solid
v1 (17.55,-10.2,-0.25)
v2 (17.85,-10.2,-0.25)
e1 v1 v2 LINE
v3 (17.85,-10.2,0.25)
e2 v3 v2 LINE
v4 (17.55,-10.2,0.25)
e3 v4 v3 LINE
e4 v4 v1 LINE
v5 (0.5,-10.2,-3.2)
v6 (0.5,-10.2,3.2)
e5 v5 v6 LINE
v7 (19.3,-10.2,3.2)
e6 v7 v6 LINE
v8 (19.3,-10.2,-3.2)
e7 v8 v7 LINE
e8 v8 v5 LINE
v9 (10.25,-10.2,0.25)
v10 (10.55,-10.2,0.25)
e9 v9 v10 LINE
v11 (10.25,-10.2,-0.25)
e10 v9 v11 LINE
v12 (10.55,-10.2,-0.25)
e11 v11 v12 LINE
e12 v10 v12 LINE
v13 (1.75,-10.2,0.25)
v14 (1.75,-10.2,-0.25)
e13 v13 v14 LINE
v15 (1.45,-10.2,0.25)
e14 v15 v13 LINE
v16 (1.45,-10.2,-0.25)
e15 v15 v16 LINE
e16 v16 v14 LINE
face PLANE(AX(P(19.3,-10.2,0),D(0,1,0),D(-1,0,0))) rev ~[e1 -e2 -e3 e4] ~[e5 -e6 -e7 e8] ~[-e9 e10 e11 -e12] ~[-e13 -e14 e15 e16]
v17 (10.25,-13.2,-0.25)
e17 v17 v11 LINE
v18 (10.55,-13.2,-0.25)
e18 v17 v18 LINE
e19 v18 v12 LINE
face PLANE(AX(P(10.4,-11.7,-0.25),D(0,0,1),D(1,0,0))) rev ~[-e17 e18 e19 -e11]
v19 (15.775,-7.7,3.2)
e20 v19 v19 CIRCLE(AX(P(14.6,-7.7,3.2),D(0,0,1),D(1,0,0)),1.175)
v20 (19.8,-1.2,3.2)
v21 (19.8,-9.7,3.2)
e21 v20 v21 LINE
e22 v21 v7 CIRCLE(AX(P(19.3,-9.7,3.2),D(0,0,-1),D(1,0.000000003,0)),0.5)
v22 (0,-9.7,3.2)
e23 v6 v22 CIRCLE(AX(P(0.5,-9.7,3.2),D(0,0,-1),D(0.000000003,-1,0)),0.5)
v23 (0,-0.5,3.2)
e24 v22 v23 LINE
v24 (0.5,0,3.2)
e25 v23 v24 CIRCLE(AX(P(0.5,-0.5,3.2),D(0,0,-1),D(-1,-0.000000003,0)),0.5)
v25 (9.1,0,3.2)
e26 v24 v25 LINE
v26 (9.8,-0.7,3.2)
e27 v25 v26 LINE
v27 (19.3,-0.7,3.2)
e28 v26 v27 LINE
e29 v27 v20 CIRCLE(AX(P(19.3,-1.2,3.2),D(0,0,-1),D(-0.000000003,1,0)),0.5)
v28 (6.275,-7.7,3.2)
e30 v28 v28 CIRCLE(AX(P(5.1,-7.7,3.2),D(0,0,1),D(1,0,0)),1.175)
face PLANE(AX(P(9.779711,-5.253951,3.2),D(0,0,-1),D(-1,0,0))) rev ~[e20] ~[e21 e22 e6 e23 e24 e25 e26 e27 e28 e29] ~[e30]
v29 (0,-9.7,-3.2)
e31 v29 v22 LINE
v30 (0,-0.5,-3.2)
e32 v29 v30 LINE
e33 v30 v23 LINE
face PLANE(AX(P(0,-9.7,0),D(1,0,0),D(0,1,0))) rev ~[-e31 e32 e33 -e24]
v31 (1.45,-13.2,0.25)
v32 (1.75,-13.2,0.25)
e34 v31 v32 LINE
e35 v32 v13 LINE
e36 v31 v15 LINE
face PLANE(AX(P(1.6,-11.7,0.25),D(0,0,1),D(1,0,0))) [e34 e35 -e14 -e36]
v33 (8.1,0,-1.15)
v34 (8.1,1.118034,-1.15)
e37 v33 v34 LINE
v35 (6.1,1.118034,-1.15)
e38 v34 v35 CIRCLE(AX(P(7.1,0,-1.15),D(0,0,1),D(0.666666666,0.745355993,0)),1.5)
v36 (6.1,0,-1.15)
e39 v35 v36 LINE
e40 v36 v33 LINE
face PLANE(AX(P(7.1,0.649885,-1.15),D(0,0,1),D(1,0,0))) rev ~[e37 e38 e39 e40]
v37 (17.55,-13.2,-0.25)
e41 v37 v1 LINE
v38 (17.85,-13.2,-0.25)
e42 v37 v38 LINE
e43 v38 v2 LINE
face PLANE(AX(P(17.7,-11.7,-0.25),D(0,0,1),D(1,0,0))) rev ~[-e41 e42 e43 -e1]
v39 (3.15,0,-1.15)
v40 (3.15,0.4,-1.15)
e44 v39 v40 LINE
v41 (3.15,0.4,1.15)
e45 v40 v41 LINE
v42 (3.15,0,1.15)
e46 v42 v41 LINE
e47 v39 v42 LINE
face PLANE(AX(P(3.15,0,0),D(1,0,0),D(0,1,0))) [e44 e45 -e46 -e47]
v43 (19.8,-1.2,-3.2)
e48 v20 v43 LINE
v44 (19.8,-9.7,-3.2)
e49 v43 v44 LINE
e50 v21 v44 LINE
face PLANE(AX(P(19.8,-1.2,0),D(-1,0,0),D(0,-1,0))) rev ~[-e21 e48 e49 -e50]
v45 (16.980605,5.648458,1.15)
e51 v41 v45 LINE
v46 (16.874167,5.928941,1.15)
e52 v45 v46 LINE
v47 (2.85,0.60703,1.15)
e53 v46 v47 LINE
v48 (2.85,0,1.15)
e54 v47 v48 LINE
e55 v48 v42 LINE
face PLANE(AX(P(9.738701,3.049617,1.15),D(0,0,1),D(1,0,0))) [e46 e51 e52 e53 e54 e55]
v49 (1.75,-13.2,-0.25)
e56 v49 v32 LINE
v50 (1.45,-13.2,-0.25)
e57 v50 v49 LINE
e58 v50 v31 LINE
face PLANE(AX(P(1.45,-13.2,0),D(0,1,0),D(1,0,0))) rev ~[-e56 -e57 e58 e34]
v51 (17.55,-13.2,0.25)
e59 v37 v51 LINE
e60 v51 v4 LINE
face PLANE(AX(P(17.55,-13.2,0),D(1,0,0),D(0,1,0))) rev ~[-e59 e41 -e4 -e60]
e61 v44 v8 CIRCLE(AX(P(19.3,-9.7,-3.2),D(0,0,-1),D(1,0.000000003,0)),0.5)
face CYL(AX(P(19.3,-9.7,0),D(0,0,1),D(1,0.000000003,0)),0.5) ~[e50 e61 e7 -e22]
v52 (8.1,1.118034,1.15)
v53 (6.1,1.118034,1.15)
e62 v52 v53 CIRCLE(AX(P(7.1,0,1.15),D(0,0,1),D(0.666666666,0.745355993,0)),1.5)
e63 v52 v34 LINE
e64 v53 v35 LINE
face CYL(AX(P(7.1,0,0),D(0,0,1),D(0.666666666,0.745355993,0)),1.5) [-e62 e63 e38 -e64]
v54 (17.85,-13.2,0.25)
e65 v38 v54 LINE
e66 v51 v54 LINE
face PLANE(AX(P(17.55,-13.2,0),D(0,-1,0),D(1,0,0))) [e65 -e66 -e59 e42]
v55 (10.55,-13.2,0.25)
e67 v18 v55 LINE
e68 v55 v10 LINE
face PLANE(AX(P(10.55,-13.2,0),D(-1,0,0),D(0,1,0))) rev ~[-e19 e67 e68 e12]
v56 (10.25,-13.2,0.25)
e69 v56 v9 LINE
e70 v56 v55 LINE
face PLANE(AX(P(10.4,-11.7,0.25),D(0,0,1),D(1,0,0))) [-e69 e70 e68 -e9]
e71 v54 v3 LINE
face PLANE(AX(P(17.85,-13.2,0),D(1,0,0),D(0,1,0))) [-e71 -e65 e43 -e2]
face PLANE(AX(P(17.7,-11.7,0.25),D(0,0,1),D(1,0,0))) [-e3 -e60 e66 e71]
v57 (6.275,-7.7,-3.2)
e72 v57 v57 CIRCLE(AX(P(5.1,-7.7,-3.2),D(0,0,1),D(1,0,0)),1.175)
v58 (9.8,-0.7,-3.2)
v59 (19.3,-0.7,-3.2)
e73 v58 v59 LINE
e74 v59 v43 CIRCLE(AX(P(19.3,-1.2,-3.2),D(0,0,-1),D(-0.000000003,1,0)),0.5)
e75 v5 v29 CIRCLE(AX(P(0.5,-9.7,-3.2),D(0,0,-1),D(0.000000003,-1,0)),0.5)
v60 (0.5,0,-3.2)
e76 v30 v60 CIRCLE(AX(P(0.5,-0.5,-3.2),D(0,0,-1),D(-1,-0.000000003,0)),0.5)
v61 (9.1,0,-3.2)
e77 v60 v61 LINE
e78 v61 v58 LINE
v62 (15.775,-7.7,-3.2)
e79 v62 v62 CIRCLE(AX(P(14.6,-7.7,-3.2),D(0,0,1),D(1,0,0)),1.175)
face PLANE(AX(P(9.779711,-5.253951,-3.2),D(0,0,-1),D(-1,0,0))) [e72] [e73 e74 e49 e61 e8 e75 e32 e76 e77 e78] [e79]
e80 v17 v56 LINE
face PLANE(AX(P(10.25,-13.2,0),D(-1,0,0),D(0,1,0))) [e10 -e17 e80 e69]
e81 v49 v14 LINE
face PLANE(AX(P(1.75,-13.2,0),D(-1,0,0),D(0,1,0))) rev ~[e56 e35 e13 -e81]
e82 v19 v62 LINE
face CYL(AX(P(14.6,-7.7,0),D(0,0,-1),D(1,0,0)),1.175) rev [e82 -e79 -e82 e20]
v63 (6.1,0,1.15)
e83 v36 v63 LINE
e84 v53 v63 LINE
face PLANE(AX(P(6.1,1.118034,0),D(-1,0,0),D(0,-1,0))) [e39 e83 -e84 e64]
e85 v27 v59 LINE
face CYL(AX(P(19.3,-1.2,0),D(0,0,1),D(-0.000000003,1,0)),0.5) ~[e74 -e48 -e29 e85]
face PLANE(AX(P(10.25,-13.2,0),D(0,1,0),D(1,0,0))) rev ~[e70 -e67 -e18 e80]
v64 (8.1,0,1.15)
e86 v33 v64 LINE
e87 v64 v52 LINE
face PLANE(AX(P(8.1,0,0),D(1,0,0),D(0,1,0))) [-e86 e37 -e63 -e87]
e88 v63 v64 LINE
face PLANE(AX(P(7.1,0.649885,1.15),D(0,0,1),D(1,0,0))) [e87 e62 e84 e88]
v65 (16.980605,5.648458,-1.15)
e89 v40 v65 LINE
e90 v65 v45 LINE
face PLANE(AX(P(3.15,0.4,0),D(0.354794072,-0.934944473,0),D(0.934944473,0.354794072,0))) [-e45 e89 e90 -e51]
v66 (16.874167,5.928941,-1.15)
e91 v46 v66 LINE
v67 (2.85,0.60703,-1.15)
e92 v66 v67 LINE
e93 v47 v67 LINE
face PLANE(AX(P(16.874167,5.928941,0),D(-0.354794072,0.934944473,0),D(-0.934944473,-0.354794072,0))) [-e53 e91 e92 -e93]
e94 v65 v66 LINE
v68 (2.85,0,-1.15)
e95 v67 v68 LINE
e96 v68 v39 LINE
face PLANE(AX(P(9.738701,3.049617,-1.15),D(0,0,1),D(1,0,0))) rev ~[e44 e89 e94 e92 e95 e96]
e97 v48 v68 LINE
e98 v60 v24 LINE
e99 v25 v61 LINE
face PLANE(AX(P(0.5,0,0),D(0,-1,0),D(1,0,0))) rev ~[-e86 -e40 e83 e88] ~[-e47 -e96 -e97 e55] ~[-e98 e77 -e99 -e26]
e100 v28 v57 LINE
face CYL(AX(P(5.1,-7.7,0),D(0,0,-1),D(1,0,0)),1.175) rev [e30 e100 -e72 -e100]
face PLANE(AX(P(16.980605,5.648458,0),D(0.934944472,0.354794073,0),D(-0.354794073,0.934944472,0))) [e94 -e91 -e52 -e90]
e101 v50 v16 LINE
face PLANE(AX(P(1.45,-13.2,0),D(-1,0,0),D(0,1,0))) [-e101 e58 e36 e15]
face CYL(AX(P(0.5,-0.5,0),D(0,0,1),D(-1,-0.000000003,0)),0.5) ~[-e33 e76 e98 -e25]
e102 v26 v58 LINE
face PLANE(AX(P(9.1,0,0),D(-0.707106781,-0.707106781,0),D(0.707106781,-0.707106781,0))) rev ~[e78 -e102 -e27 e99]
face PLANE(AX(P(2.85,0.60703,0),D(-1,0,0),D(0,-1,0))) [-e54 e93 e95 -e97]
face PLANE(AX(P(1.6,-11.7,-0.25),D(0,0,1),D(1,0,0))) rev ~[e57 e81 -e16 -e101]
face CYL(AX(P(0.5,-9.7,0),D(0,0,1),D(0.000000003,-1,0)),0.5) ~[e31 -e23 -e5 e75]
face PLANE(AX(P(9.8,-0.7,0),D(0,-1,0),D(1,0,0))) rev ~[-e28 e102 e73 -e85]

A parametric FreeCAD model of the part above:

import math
import FreeCAD as App
import Part
import Sketcher
from FreeCAD import Vector
Q = App.Units.Quantity


def add_polygon(sketch, points):
    """Adds a closed chain of lines whose ends are joined by coincident constraints."""
    first, n = sketch.GeometryCount, len(points)
    for a, b in zip(points, points[1:] + points[:1]):
        sketch.addGeometry(Part.LineSegment(App.Vector(*a, 0), App.Vector(*b, 0)), False)
    for i in range(n):
        sketch.addConstraint(Sketcher.Constraint("Coincident", first + i, 2, first + (i + 1) % n, 1))

doc = App.newDocument("Part")
body = doc.addObject("PartDesign::Body", "Body")

# Sketch on XY plane
sketch1 = body.newObject("Sketcher::SketchObject", "Sketch")
sketch1.AttachmentSupport = (doc.getObject("XY_Plane"), [""])
sketch1.MapMode = "FlatFace"
sketch1.addGeometry(Part.LineSegment(Vector(9.1, 0, 0), Vector(0.5, 0, 0)), False)
sketch1.addGeometry(Part.ArcOfCircle(Part.Circle(Vector(0.5, -0.5, 0), Vector(0, 0, 1), 0.5), math.radians(90), math.radians(180)), False)
sketch1.addGeometry(Part.LineSegment(Vector(0, -0.5, 0), Vector(0, -9.7, 0)), False)
sketch1.addGeometry(Part.ArcOfCircle(Part.Circle(Vector(0.5, -9.7, 0), Vector(0, 0, 1), 0.5), math.radians(180), math.radians(270)), False)
sketch1.addGeometry(Part.LineSegment(Vector(0.5, -10.2, 0), Vector(19.3, -10.2, 0)), False)
sketch1.addGeometry(Part.ArcOfCircle(Part.Circle(Vector(19.3, -9.7, 0), Vector(0, 0, 1), 0.5), math.radians(-90), math.radians(0)), False)
sketch1.addGeometry(Part.LineSegment(Vector(19.8, -9.7, 0), Vector(19.8, -1.2, 0)), False)
sketch1.addGeometry(Part.ArcOfCircle(Part.Circle(Vector(19.3, -1.2, 0), Vector(0, 0, 1), 0.5), math.radians(0), math.radians(90)), False)
sketch1.addGeometry(Part.LineSegment(Vector(19.3, -0.7, 0), Vector(9.8, -0.7, 0)), False)
sketch1.addGeometry(Part.LineSegment(Vector(9.8, -0.7, 0), Vector(9.1, 0, 0)), False)
sketch1.addGeometry(Part.Circle(Vector(14.6, -7.7, 0), Vector(0, 0, 1), 1.175), False)
sketch1.addGeometry(Part.Circle(Vector(5.1, -7.7, 0), Vector(0, 0, 1), 1.175), False)
sketch1.addConstraint(Sketcher.Constraint("Tangent", 0, 2, 1, 1))
sketch1.addConstraint(Sketcher.Constraint("Tangent", 1, 2, 2, 1))
sketch1.addConstraint(Sketcher.Constraint("Tangent", 2, 2, 3, 1))
sketch1.addConstraint(Sketcher.Constraint("Tangent", 3, 2, 4, 1))
sketch1.addConstraint(Sketcher.Constraint("Tangent", 4, 2, 5, 1))
sketch1.addConstraint(Sketcher.Constraint("Tangent", 5, 2, 6, 1))
sketch1.addConstraint(Sketcher.Constraint("Tangent", 6, 2, 7, 1))
sketch1.addConstraint(Sketcher.Constraint("Tangent", 7, 2, 8, 1))
sketch1.addConstraint(Sketcher.Constraint("Coincident", 8, 2, 9, 1))
sketch1.addConstraint(Sketcher.Constraint("Coincident", 9, 2, 0, 1))
sketch1.addConstraint(Sketcher.Constraint("Horizontal", 0))
sketch1.addConstraint(Sketcher.Constraint("Vertical", 2))
sketch1.addConstraint(Sketcher.Constraint("Horizontal", 4))
sketch1.addConstraint(Sketcher.Constraint("Vertical", 6))
sketch1.addConstraint(Sketcher.Constraint("Horizontal", 8))
sketch1.addConstraint(Sketcher.Constraint("Equal", 1, 3))
sketch1.addConstraint(Sketcher.Constraint("Equal", 3, 5))
sketch1.addConstraint(Sketcher.Constraint("Equal", 5, 7))
sketch1.addConstraint(Sketcher.Constraint("Equal", 10, 11))
sketch1.addConstraint(Sketcher.Constraint("PointOnObject", 0, 2, -1))
sketch1.addConstraint(Sketcher.Constraint("PointOnObject", 1, 2, -2))
sketch1.addConstraint(Sketcher.Constraint("Horizontal", 10, 3, 11, 3))
sketch1.addConstraint(Sketcher.Constraint("Radius", 1, 0.5))
sketch1.addConstraint(Sketcher.Constraint("Diameter", 10, 2.35))
sketch1.addConstraint(Sketcher.Constraint("Angle", 9, Q("135 deg")))
sketch1.addConstraint(Sketcher.Constraint("DistanceX", 0, 2, 0, 1, 8.6))
sketch1.addConstraint(Sketcher.Constraint("DistanceX", 4, 1, 4, 2, 18.8))
sketch1.addConstraint(Sketcher.Constraint("DistanceX", 8, 2, 8, 1, 9.5))
sketch1.addConstraint(Sketcher.Constraint("DistanceY", 2, 2, 2, 1, 9.2))
sketch1.addConstraint(Sketcher.Constraint("DistanceY", 5, 3, 10, 3, 2.0))
sketch1.addConstraint(Sketcher.Constraint("DistanceX", 11, 3, 9, 2, 4.0))
sketch1.addConstraint(Sketcher.Constraint("DistanceX", -1, 1, 10, 3, 14.6))
pad1 = body.newObject("PartDesign::Pad", "Pad")
pad1.Profile = sketch1
pad1.Length = 6.4
pad1.Midplane = True

# Sketch on XY plane
sketch2 = body.newObject("Sketcher::SketchObject", "Sketch001")
sketch2.AttachmentSupport = (doc.getObject("XY_Plane"), [""])
sketch2.MapMode = "FlatFace"
sketch2.addGeometry(Part.LineSegment(Vector(6.1, 1.118034, 0), Vector(6.1, 0, 0)), False)
sketch2.addGeometry(Part.LineSegment(Vector(6.1, 0, 0), Vector(8.1, 0, 0)), False)
sketch2.addGeometry(Part.LineSegment(Vector(8.1, 0, 0), Vector(8.1, 1.118034, 0)), False)
sketch2.addGeometry(Part.ArcOfCircle(Part.Circle(Vector(7.1, 0, 0), Vector(0, 0, 1), 1.5), math.radians(48.189685), math.radians(131.810315)), False)
sketch2.addConstraint(Sketcher.Constraint("Coincident", 0, 2, 1, 1))
sketch2.addConstraint(Sketcher.Constraint("Coincident", 1, 2, 2, 1))
sketch2.addConstraint(Sketcher.Constraint("Coincident", 2, 2, 3, 1))
sketch2.addConstraint(Sketcher.Constraint("Coincident", 3, 2, 0, 1))
sketch2.addConstraint(Sketcher.Constraint("Vertical", 0))
sketch2.addConstraint(Sketcher.Constraint("Horizontal", 1))
sketch2.addConstraint(Sketcher.Constraint("Vertical", 2))
sketch2.addConstraint(Sketcher.Constraint("PointOnObject", 3, 3, -1))
sketch2.addConstraint(Sketcher.Constraint("PointOnObject", 0, 2, -1))
sketch2.addConstraint(Sketcher.Constraint("Horizontal", 2, 2, 3, 2))
sketch2.addConstraint(Sketcher.Constraint("Radius", 3, 1.5))
sketch2.addConstraint(Sketcher.Constraint("DistanceX", 1, 1, 1, 2, 2.0))
sketch2.addConstraint(Sketcher.Constraint("DistanceX", -1, 1, 3, 3, 7.1))
pad2 = body.newObject("PartDesign::Pad", "Pad001")
pad2.Profile = sketch2
pad2.Length = 2.3
pad2.Midplane = True

# Sketch on XY plane
sketch3 = body.newObject("Sketcher::SketchObject", "Sketch002")
sketch3.AttachmentSupport = (doc.getObject("XY_Plane"), [""])
sketch3.MapMode = "FlatFace"
add_polygon(sketch3, [(2.85, 0), (3.15, 0), (3.15, 0.4), (16.980605, 5.648458), (16.874167, 5.928941), (2.85, 0.60703)])  # lines 0-5
sketch3.addConstraint(Sketcher.Constraint("Horizontal", 0))
sketch3.addConstraint(Sketcher.Constraint("Vertical", 1))
sketch3.addConstraint(Sketcher.Constraint("Vertical", 5))
sketch3.addConstraint(Sketcher.Constraint("PointOnObject", 0, 2, -1))
sketch3.addConstraint(Sketcher.Constraint("Perpendicular", 2, 3))
sketch3.addConstraint(Sketcher.Constraint("Perpendicular", 3, 4))
sketch3.addConstraint(Sketcher.Constraint("Distance", 4, 15.0))
sketch3.addConstraint(Sketcher.Constraint("DistanceX", 0, 1, 0, 2, 0.3))
sketch3.addConstraint(Sketcher.Constraint("DistanceY", 1, 1, 1, 2, 0.4))
sketch3.addConstraint(Sketcher.Constraint("Distance", 3, 0.3))
sketch3.addConstraint(Sketcher.Constraint("DistanceX", -1, 1, 0, 2, 3.15))
sketch3.addConstraint(Sketcher.Constraint("DistanceY", 5, 2, 5, 1, 0.60703))
pad3 = body.newObject("PartDesign::Pad", "Pad002")
pad3.Profile = sketch3
pad3.Length = 2.3
pad3.Midplane = True

# Sketch on XY plane
sketch4 = body.newObject("Sketcher::SketchObject", "Sketch003")
sketch4.AttachmentSupport = (doc.getObject("XY_Plane"), [""])
sketch4.MapMode = "FlatFace"
add_polygon(sketch4, [(1.45, -10.2), (1.45, -13.2), (1.75, -13.2), (1.75, -10.2)])  # lines 0-3
add_polygon(sketch4, [(10.25, -10.2), (10.25, -13.2), (10.55, -13.2), (10.55, -10.2)])  # lines 4-7
add_polygon(sketch4, [(17.55, -10.2), (17.55, -13.2), (17.85, -13.2), (17.85, -10.2)])  # lines 8-11
sketch4.addConstraint(Sketcher.Constraint("Vertical", 0))
sketch4.addConstraint(Sketcher.Constraint("Horizontal", 1))
sketch4.addConstraint(Sketcher.Constraint("Vertical", 2))
sketch4.addConstraint(Sketcher.Constraint("Horizontal", 3))
sketch4.addConstraint(Sketcher.Constraint("Vertical", 4))
sketch4.addConstraint(Sketcher.Constraint("Horizontal", 5))
sketch4.addConstraint(Sketcher.Constraint("Vertical", 6))
sketch4.addConstraint(Sketcher.Constraint("Horizontal", 7))
sketch4.addConstraint(Sketcher.Constraint("Vertical", 8))
sketch4.addConstraint(Sketcher.Constraint("Horizontal", 9))
sketch4.addConstraint(Sketcher.Constraint("Vertical", 10))
sketch4.addConstraint(Sketcher.Constraint("Horizontal", 11))
sketch4.addConstraint(Sketcher.Constraint("Horizontal", 1, 2, 4, 2))
sketch4.addConstraint(Sketcher.Constraint("Horizontal", 3, 2, 6, 2))
sketch4.addConstraint(Sketcher.Constraint("Horizontal", 5, 2, 8, 2))
sketch4.addConstraint(Sketcher.Constraint("Horizontal", 7, 2, 10, 2))
sketch4.addConstraint(Sketcher.Constraint("Equal", 3, 5))
sketch4.addConstraint(Sketcher.Constraint("Equal", 7, 9))
sketch4.addConstraint(Sketcher.Constraint("DistanceY", 0, 2, 0, 1, 3.0))
sketch4.addConstraint(Sketcher.Constraint("DistanceX", 1, 1, 1, 2, 0.3))
sketch4.addConstraint(Sketcher.Constraint("DistanceX", 5, 2, 8, 2, 7.0))
sketch4.addConstraint(Sketcher.Constraint("DistanceY", 0, 2, -1, 1, 13.2))
sketch4.addConstraint(Sketcher.Constraint("DistanceX", 1, 2, 4, 2, 8.5))
sketch4.addConstraint(Sketcher.Constraint("DistanceX", -1, 1, 0, 2, 1.45))
pad4 = body.newObject("PartDesign::Pad", "Pad003")
pad4.Profile = sketch4
pad4.Length = 0.5
pad4.Midplane = True

doc.recompute()
